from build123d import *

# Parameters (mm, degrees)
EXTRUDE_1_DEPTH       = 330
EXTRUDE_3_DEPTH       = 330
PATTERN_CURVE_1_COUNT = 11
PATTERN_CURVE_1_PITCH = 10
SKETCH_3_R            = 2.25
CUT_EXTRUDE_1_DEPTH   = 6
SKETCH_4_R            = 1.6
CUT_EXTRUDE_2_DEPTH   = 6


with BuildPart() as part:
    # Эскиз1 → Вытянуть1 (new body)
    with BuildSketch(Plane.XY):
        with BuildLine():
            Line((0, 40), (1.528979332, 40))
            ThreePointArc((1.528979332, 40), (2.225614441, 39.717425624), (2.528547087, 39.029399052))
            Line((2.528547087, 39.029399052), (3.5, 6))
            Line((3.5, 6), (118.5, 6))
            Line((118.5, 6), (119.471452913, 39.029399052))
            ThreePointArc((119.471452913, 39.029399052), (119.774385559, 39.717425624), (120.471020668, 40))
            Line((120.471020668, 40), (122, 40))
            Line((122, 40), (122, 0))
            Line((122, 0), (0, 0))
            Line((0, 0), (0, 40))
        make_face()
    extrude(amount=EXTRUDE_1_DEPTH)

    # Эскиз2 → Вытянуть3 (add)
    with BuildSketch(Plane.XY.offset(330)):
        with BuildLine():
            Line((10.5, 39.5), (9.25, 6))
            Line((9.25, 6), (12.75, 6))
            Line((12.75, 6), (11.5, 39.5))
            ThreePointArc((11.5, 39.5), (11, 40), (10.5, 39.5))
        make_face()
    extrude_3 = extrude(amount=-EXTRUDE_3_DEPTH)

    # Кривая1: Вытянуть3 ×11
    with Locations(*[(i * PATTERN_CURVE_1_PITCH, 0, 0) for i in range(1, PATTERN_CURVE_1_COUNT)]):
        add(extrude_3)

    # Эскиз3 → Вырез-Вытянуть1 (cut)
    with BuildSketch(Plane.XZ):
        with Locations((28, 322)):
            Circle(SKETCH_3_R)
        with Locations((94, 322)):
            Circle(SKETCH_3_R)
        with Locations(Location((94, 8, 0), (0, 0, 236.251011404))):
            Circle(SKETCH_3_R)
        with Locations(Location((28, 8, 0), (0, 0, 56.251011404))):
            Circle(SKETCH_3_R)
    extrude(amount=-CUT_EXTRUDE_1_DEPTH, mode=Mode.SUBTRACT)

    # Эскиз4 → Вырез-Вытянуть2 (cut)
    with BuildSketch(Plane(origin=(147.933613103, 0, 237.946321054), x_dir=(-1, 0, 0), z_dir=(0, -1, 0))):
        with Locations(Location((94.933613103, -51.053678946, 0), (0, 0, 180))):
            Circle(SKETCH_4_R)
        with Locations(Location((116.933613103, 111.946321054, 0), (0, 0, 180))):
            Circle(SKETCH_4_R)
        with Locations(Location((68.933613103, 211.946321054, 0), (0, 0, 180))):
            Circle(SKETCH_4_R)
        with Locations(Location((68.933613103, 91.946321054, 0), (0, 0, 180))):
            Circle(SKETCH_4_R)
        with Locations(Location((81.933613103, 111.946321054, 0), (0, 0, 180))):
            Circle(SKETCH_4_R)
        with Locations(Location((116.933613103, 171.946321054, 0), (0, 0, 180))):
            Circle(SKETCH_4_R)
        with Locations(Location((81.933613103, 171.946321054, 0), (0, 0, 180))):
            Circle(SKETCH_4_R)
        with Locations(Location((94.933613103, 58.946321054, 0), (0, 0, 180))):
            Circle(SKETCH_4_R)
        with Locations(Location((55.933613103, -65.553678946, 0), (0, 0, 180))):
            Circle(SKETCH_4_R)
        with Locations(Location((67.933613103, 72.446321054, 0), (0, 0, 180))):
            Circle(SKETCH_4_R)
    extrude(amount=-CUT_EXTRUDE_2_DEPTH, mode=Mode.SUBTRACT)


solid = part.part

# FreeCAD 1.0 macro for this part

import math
import FreeCAD as App
import Part
import Sketcher
from FreeCAD import Vector
Q = App.Units.Quantity

doc = App.newDocument("Part")
body = doc.addObject("PartDesign::Body", "Body")

# Sketch on XY plane
sketch1 = doc.addObject("Sketcher::SketchObject", "Sketch")
body.addObject(sketch1)
sketch1.AttachmentSupport = (doc.XY_Plane, [""])
sketch1.MapMode = "FlatFace"
sketch1.addGeometry([
    Part.LineSegment(Vector(1.528979, 40, 0), Vector(0, 40, 0)),  # 0
    Part.LineSegment(Vector(0, 40, 0), Vector(0, 0, 0)),  # 1
    Part.LineSegment(Vector(0, 0, 0), Vector(122, 0, 0)),  # 2
    Part.LineSegment(Vector(122, 0, 0), Vector(122, 40, 0)),  # 3
    Part.LineSegment(Vector(122, 40, 0), Vector(120.471021, 40, 0)),  # 4
    Part.ArcOfCircle(Part.Circle(Vector(120.471021, 39, 0), Vector(0, 0, 1), 1), math.radians(90), math.radians(178.315316)),  # 5
    Part.LineSegment(Vector(119.471453, 39.029399, 0), Vector(118.5, 6, 0)),  # 6
    Part.LineSegment(Vector(118.5, 6, 0), Vector(3.5, 6, 0)),  # 7
    Part.LineSegment(Vector(3.5, 6, 0), Vector(2.528547, 39.029399, 0)),  # 8
    Part.ArcOfCircle(Part.Circle(Vector(1.528979, 39, 0), Vector(0, 0, 1), 1), math.radians(1.684684), math.radians(90)),  # 9
], False)
sketch1.addConstraint([
    Sketcher.Constraint("Coincident", 0, 2, 1, 1),
    Sketcher.Constraint("Coincident", 1, 2, 2, 1),
    Sketcher.Constraint("Coincident", 2, 2, 3, 1),
    Sketcher.Constraint("Coincident", 3, 2, 4, 1),
    Sketcher.Constraint("Tangent", 4, 2, 5, 1),
    Sketcher.Constraint("Tangent", 5, 2, 6, 1),
    Sketcher.Constraint("Coincident", 6, 2, 7, 1),
    Sketcher.Constraint("Coincident", 7, 2, 8, 1),
    Sketcher.Constraint("Tangent", 8, 2, 9, 1),
    Sketcher.Constraint("Tangent", 9, 2, 0, 1),
    Sketcher.Constraint("Horizontal", 0),
    Sketcher.Constraint("Vertical", 1),
    Sketcher.Constraint("Horizontal", 2),
    Sketcher.Constraint("Vertical", 3),
    Sketcher.Constraint("Horizontal", 4),
    Sketcher.Constraint("Horizontal", 7),
    Sketcher.Constraint("Coincident", 1, 2, -1, 1),
    Sketcher.Constraint("Equal", 5, 9),
    Sketcher.Constraint("Horizontal", 5, 3, 9, 3),
    Sketcher.Constraint("Horizontal", 5, 2, 8, 2),
    Sketcher.Constraint("Equal", 0, 4),
    Sketcher.Constraint("Radius", 5, Q("1 mm")),
    Sketcher.Constraint("DistanceX", 2, 1, 2, 2, Q("122 mm")),
    Sketcher.Constraint("DistanceX", 7, 2, 7, 1, Q("115 mm")),
    Sketcher.Constraint("DistanceY", 1, 2, 1, 1, Q("40 mm")),
    Sketcher.Constraint("DistanceY", -1, 1, 6, 2, Q("6 mm")),
    Sketcher.Constraint("DistanceX", 0, 2, 0, 1, Q("1.528979 mm")),
])
pad1 = doc.addObject("PartDesign::Pad", "Pad")
body.addObject(pad1)
pad1.Profile = sketch1
pad1.Length = 330

# Sketch on XY plane
sketch2 = doc.addObject("Sketcher::SketchObject", "Sketch001")
body.addObject(sketch2)
sketch2.AttachmentSupport = (doc.XY_Plane, [""])
sketch2.MapMode = "FlatFace"
sketch2.AttachmentOffset = App.Placement(Vector(0, 0, 330), App.Rotation())
sketch2.addGeometry([
    Part.LineSegment(Vector(10.5, 39.5, 0), Vector(9.25, 6, 0)),
    Part.LineSegment(Vector(9.25, 6, 0), Vector(12.75, 6, 0)),
    Part.LineSegment(Vector(12.75, 6, 0), Vector(11.5, 39.5, 0)),
    Part.ArcOfCircle(Part.Circle(Vector(11, 39.5, 0), Vector(0, 0, 1), 0.5), math.radians(0), math.radians(180)),
], False)
sketch2.addConstraint([
    Sketcher.Constraint("Coincident", 0, 2, 1, 1),
    Sketcher.Constraint("Coincident", 1, 2, 2, 1),
    Sketcher.Constraint("Coincident", 2, 2, 3, 1),
    Sketcher.Constraint("Coincident", 3, 2, 0, 1),
    Sketcher.Constraint("Horizontal", 1),
    Sketcher.Constraint("Horizontal", 3, 3, 2, 2),
    Sketcher.Constraint("Horizontal", 2, 2, 3, 2),
    Sketcher.Constraint("Equal", 0, 2),
    Sketcher.Constraint("Radius", 3, Q("0.5 mm")),
    Sketcher.Constraint("DistanceX", 1, 1, 1, 2, Q("3.5 mm")),
    Sketcher.Constraint("DistanceX", -1, 1, 3, 3, Q("11 mm")),
    Sketcher.Constraint("DistanceY", -1, 1, 0, 2, Q("6 mm")),
    Sketcher.Constraint("DistanceY", -1, 1, 3, 3, Q("39.5 mm")),
])
pad2 = doc.addObject("PartDesign::Pad", "Pad001")
body.addObject(pad2)
pad2.Profile = sketch2
pad2.Length = 330
pad2.Reversed = True
doc.recompute()

linearpattern = doc.addObject("PartDesign::LinearPattern", "LinearPattern")
body.addObject(linearpattern)
linearpattern.Originals = [pad2]
linearpattern.Direction = (doc.X_Axis, [""])
linearpattern.Mode = "offset"
linearpattern.Offset = 10
linearpattern.Occurrences = 11
body.Tip = linearpattern

# Sketch on XZ plane
sketch3 = doc.addObject("Sketcher::SketchObject", "Sketch002")
body.addObject(sketch3)
sketch3.AttachmentSupport = (doc.XZ_Plane, [""])
sketch3.MapMode = "FlatFace"
sketch3.addGeometry([
    Part.Circle(Vector(28, 322, 0), Vector(0, 0, 1), 2.25),
    Part.Circle(Vector(94, 322, 0), Vector(0, 0, 1), 2.25),
    Part.Circle(Vector(94, 8, 0), Vector(0, 0, 1), 2.25),
    Part.Circle(Vector(28, 8, 0), Vector(0, 0, 1), 2.25),
], False)
sketch3.addConstraint([
    Sketcher.Constraint("Equal", 0, 1),
    Sketcher.Constraint("Equal", 1, 2),
    Sketcher.Constraint("Equal", 2, 3),
    Sketcher.Constraint("Horizontal", 0, 3, 1, 3),
    Sketcher.Constraint("Horizontal", 2, 3, 3, 3),
    Sketcher.Constraint("Vertical", 1, 3, 2, 3),
    Sketcher.Constraint("Vertical", 0, 3, 3, 3),
    Sketcher.Constraint("Diameter", 0, Q("4.5 mm")),
    Sketcher.Constraint("DistanceX", -1, 1, 0, 3, Q("28 mm")),
    Sketcher.Constraint("DistanceY", -1, 1, 0, 3, Q("322 mm")),
    Sketcher.Constraint("DistanceX", -1, 1, 1, 3, Q("94 mm")),
    Sketcher.Constraint("DistanceY", -1, 1, 2, 3, Q("8 mm")),
])
pocket1 = doc.addObject("PartDesign::Pocket", "Pocket")
body.addObject(pocket1)
pocket1.Profile = sketch3
pocket1.Length = 6

# Sketch on XZ plane
sketch4 = doc.addObject("Sketcher::SketchObject", "Sketch003")
body.addObject(sketch4)
sketch4.AttachmentSupport = (doc.XZ_Plane, [""])
sketch4.MapMode = "FlatFace"
sketch4.addGeometry([
    Part.Circle(Vector(53, 289, 0), Vector(0, 0, 1), 1.6),  # 0
    Part.Circle(Vector(31, 126, 0), Vector(0, 0, 1), 1.6),  # 1
    Part.Circle(Vector(79, 26, 0), Vector(0, 0, 1), 1.6),  # 2
    Part.Circle(Vector(79, 146, 0), Vector(0, 0, 1), 1.6),  # 3
    Part.Circle(Vector(66, 126, 0), Vector(0, 0, 1), 1.6),  # 4
    Part.Circle(Vector(31, 66, 0), Vector(0, 0, 1), 1.6),  # 5
    Part.Circle(Vector(66, 66, 0), Vector(0, 0, 1), 1.6),  # 6
    Part.Circle(Vector(53, 179, 0), Vector(0, 0, 1), 1.6),  # 7
    Part.Circle(Vector(92, 303.5, 0), Vector(0, 0, 1), 1.6),  # 8
    Part.Circle(Vector(80, 165.5, 0), Vector(0, 0, 1), 1.6),  # 9
], False)
sketch4.addConstraint([
    Sketcher.Constraint("Equal", 0, 1),
    Sketcher.Constraint("Equal", 1, 2),
    Sketcher.Constraint("Equal", 2, 3),
    Sketcher.Constraint("Equal", 3, 4),
    Sketcher.Constraint("Equal", 4, 5),
    Sketcher.Constraint("Equal", 5, 6),
    Sketcher.Constraint("Equal", 6, 7),
    Sketcher.Constraint("Equal", 7, 8),
    Sketcher.Constraint("Equal", 8, 9),
    Sketcher.Constraint("Horizontal", 1, 3, 4, 3),
    Sketcher.Constraint("Horizontal", 5, 3, 6, 3),
    Sketcher.Constraint("Vertical", 2, 3, 3, 3),
    Sketcher.Constraint("Vertical", 1, 3, 5, 3),
    Sketcher.Constraint("Vertical", 4, 3, 6, 3),
    Sketcher.Constraint("Vertical", 0, 3, 7, 3),
    Sketcher.Constraint("Diameter", 0, Q("3.2 mm")),
    Sketcher.Constraint("DistanceX", -1, 1, 0, 3, Q("53 mm")),
    Sketcher.Constraint("DistanceY", -1, 1, 0, 3, Q("289 mm")),
    Sketcher.Constraint("DistanceX", -1, 1, 1, 3, Q("31 mm")),
    Sketcher.Constraint("DistanceY", -1, 1, 1, 3, Q("126 mm")),
    Sketcher.Constraint("DistanceX", -1, 1, 2, 3, Q("79 mm")),
    Sketcher.Constraint("DistanceY", -1, 1, 2, 3, Q("26 mm")),
    Sketcher.Constraint("DistanceY", -1, 1, 3, 3, Q("146 mm")),
    Sketcher.Constraint("DistanceX", -1, 1, 4, 3, Q("66 mm")),
    Sketcher.Constraint("DistanceY", -1, 1, 5, 3, Q("66 mm")),
    Sketcher.Constraint("DistanceY", -1, 1, 7, 3, Q("179 mm")),
    Sketcher.Constraint("DistanceX", -1, 1, 8, 3, Q("92 mm")),
    Sketcher.Constraint("DistanceX", -1, 1, 9, 3, Q("80 mm")),
    Sketcher.Constraint("DistanceY", -1, 1, 8, 3, Q("303.5 mm")),
    Sketcher.Constraint("DistanceY", -1, 1, 9, 3, Q("165.5 mm")),
])
pocket2 = doc.addObject("PartDesign::Pocket", "Pocket001")
body.addObject(pocket2)
pocket2.Profile = sketch4
pocket2.Length = 6

doc.recompute()
